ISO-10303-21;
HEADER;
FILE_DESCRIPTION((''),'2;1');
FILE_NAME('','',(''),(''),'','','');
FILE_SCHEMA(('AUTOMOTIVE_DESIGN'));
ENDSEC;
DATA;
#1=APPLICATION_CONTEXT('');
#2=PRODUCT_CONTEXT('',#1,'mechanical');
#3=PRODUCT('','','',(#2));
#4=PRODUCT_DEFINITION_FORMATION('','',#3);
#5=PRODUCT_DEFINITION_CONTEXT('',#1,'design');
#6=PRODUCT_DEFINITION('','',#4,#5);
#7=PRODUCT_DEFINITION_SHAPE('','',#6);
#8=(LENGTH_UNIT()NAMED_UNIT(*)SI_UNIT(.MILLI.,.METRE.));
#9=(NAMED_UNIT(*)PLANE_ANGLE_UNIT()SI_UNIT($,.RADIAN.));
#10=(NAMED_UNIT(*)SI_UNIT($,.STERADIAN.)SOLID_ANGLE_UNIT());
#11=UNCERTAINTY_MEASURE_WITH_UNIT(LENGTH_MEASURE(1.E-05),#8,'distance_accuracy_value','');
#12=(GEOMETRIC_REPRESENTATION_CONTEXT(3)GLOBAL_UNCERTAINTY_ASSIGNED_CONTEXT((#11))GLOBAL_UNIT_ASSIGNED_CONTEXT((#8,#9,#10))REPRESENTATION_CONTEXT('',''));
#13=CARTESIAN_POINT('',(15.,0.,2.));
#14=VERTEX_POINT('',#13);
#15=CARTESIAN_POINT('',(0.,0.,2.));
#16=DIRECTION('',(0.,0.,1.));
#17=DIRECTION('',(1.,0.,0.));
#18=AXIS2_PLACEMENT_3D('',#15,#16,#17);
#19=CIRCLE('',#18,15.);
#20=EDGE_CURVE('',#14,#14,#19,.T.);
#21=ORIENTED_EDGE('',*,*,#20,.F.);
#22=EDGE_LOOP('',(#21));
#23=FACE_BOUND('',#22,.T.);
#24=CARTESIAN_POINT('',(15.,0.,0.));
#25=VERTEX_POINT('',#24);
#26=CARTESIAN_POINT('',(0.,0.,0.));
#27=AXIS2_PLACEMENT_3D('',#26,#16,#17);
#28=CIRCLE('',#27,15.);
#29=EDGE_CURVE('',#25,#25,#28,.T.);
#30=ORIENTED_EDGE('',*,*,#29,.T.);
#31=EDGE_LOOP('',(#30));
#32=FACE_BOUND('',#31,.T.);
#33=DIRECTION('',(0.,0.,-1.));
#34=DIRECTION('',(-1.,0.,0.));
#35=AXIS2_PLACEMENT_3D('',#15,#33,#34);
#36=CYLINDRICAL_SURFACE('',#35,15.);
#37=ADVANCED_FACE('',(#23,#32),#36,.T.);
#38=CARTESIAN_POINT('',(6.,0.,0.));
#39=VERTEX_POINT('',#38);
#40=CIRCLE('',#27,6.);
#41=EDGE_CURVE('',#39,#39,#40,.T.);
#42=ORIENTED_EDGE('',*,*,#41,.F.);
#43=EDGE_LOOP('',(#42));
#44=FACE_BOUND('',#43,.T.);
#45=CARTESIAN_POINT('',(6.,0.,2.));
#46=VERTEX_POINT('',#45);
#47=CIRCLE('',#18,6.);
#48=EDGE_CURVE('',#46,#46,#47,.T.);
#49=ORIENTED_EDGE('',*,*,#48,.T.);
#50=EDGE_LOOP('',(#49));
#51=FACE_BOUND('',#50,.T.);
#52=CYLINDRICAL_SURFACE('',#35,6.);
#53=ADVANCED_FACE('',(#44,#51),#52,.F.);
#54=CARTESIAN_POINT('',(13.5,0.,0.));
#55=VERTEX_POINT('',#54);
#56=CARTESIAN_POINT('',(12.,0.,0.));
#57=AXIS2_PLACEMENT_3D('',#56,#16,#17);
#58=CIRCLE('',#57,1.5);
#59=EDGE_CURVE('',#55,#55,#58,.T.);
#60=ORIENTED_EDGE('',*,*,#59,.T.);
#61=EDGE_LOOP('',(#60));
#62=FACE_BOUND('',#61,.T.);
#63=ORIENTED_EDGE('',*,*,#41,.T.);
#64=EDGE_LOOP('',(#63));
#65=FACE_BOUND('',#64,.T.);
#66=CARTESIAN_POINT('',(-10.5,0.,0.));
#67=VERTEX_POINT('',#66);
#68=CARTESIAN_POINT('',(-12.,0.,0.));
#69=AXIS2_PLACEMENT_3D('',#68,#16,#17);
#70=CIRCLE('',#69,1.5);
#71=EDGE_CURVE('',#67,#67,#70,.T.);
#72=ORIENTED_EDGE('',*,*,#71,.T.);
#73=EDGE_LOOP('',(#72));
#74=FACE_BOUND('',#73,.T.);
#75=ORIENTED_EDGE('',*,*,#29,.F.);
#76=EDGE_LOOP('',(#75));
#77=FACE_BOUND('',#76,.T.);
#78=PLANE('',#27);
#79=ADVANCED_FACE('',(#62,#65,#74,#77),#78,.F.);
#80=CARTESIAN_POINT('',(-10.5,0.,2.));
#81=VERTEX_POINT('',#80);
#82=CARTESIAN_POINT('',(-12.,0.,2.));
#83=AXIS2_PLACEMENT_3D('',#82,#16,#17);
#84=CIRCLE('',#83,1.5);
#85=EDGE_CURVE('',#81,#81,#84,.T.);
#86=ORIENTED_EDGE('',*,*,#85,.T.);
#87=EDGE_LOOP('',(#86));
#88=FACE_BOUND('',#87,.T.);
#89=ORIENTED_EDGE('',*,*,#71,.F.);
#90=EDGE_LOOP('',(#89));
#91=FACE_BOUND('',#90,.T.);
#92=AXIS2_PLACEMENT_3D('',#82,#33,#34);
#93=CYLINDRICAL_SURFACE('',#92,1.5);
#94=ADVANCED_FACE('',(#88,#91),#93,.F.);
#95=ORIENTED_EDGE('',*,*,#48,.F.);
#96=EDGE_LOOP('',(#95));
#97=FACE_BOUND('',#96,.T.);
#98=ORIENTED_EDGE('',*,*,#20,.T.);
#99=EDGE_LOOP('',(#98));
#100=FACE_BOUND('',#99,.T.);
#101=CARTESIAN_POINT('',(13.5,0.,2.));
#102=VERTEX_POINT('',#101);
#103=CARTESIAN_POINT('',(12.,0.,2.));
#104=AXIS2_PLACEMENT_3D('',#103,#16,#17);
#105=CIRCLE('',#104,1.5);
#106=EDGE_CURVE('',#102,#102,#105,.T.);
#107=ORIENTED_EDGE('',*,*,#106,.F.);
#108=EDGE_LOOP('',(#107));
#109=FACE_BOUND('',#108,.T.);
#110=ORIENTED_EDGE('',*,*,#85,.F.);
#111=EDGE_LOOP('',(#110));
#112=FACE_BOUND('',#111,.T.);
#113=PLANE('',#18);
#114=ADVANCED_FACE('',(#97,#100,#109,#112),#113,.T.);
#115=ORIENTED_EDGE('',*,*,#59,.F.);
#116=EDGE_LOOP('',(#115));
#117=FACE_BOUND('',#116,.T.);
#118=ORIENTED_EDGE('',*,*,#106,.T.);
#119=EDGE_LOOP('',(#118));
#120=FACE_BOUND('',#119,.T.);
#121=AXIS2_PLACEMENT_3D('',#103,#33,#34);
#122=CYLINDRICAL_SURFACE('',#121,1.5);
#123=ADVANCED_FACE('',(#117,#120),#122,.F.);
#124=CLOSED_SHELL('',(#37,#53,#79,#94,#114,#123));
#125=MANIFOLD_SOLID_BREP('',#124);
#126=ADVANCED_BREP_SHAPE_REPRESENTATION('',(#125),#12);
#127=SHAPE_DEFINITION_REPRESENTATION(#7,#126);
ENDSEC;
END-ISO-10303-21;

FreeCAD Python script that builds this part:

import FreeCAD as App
import Part
import Sketcher

V = App.Vector
Q = App.Units.Quantity

doc = App.newDocument("Part")
params = doc.addObject("Spreadsheet::Sheet", "Params")
for row, (alias, value) in enumerate([
    ("sketch1_diameter", "30 mm"),
    ("sketch1_diameter2", "3 mm"),
    ("sketch1_diameter3", "12 mm"),
    ("pad1_length", "2 mm"),
], start=1):
    params.set(f"A{row}", alias)
    params.set(f"B{row}", "=" + value)
    params.setAlias(f"B{row}", alias)

body = doc.addObject("PartDesign::Body", "Body")

# Sketch on XY plane
sketch1 = body.newObject("Sketcher::SketchObject", "Sketch")
sketch1.AttachmentSupport = (doc.getObject("XY_Plane"), [""])
sketch1.MapMode = "FlatFace"
sketch1.addGeometry(Part.Circle(V(0, 0, 0), V(0, 0, 1), 15), False)
sketch1.addGeometry(Part.Circle(V(-12, 0, 0), V(0, 0, 1), 1.5), False)
sketch1.addGeometry(Part.Circle(V(0, 0, 0), V(0, 0, 1), 6), False)
sketch1.addGeometry(Part.Circle(V(12, 0, 0), V(0, 0, 1), 1.5), False)
sketch1.addConstraint(Sketcher.Constraint("Coincident", 0, 3, -1, 1))
sketch1.addConstraint(Sketcher.Constraint("Coincident", 2, 3, -1, 1))
sketch1.addConstraint(Sketcher.Constraint("Equal", 1, 3))
sketch1.addConstraint(Sketcher.Constraint("Symmetric", 1, 3, 3, 3, -1, 1))
sketch1.addConstraint(Sketcher.Constraint("PointOnObject", 1, 3, -1))
sketch1.addConstraint(Sketcher.Constraint("Diameter", 0, Q("30 mm")))
sketch1.addConstraint(Sketcher.Constraint("Diameter", 1, Q("3 mm")))
sketch1.addConstraint(Sketcher.Constraint("Diameter", 2, Q("12 mm")))
sketch1.addConstraint(Sketcher.Constraint("DistanceX", 1, 3, -1, 1, Q("12 mm")))
sketch1.setExpression("Constraints[5]", "Params.sketch1_diameter")
sketch1.setExpression("Constraints[6]", "Params.sketch1_diameter2")
sketch1.setExpression("Constraints[7]", "Params.sketch1_diameter3")
pad1 = body.newObject("PartDesign::Pad", "Pad")
pad1.Profile = sketch1
pad1.setExpression("Length", "Params.pad1_length")

doc.recompute()
